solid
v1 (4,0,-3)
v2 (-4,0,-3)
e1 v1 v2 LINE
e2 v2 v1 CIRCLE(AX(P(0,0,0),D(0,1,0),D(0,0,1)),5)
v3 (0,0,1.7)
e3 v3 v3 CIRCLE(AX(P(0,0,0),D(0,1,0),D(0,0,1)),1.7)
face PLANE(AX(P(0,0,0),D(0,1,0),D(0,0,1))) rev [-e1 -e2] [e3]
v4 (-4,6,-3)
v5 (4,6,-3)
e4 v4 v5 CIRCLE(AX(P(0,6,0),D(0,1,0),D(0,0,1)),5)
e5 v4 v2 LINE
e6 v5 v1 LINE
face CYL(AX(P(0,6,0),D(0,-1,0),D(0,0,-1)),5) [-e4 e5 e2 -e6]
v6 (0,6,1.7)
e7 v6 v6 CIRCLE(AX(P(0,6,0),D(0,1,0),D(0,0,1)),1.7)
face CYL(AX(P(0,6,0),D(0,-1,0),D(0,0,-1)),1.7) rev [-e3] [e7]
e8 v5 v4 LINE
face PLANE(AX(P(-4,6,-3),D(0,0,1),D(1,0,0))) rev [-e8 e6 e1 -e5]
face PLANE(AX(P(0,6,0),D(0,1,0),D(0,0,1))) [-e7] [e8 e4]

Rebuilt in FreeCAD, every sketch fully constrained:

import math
import FreeCAD as App
import Part
import Sketcher
from FreeCAD import Vector
Q = App.Units.Quantity

doc = App.newDocument("Part")
body = doc.addObject("PartDesign::Body", "Body")

# Sketch on XZ plane
sketch1 = body.newObject("Sketcher::SketchObject", "Sketch")
sketch1.AttachmentSupport = (doc.getObject("XZ_Plane"), [""])
sketch1.MapMode = "FlatFace"
sketch1.addGeometry([
    Part.LineSegment(Vector(4, -3, 0), Vector(-4, -3, 0)),
    Part.ArcOfCircle(Part.Circle(Vector(0, 0, 0), Vector(0, 0, 1), 5), math.radians(-36.869898), math.radians(216.869898)),
    Part.Circle(Vector(0, 0, 0), Vector(0, 0, 1), 1.7),
], False)
sketch1.addConstraint([
    Sketcher.Constraint("Coincident", 0, 1, 1, 1),
    Sketcher.Constraint("Coincident", 1, 2, 0, 2),
    Sketcher.Constraint("Horizontal", 0),
    Sketcher.Constraint("Coincident", 1, 3, -1, 1),
    Sketcher.Constraint("Coincident", 2, 3, -1, 1),
    Sketcher.Constraint("Radius", 1, Q("5 mm")),
    Sketcher.Constraint("Diameter", 2, Q("3.4 mm")),
    Sketcher.Constraint("DistanceX", 0, 2, 0, 1, Q("8 mm")),
])
pad1 = body.newObject("PartDesign::Pad", "Pad")
pad1.Profile = sketch1
pad1.Length = 6
pad1.Reversed = True

doc.recompute()
